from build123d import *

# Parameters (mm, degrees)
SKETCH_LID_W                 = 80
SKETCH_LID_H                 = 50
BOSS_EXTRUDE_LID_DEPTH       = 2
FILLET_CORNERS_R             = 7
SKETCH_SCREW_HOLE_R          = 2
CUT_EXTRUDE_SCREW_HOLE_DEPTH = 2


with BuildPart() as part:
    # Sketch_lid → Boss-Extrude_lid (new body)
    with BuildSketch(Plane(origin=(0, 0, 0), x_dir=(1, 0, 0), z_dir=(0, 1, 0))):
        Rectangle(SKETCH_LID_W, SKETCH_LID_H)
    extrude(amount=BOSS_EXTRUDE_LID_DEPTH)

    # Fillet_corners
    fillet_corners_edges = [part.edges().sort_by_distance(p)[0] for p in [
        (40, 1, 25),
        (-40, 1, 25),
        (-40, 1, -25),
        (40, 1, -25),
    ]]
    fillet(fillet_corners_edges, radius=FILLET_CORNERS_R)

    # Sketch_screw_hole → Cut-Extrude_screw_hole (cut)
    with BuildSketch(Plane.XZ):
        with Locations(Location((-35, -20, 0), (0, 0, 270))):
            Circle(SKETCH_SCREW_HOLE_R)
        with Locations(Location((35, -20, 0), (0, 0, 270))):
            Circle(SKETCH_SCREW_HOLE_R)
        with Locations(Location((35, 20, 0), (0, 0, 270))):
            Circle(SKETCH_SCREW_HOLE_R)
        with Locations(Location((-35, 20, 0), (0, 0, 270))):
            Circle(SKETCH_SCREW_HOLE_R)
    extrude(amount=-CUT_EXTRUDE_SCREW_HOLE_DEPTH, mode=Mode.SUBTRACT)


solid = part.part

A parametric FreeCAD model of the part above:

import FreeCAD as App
import Part
import Sketcher


def edges_at(feature, points):
    """Names of the edges that pass closest to the given points."""
    edges = feature.Shape.Edges
    near = lambda p: min(range(len(edges)), key=lambda i: edges[i].distToShape(Part.Vertex(*p))[0])
    return sorted({f"Edge{near(p) + 1}" for p in points})


def add_polygon(sketch, points):
    """Adds a closed chain of lines whose ends are joined by coincident constraints."""
    first, n = sketch.GeometryCount, len(points)
    for a, b in zip(points, points[1:] + points[:1]):
        sketch.addGeometry(Part.LineSegment(App.Vector(*a, 0), App.Vector(*b, 0)), False)
    for i in range(n):
        sketch.addConstraint(Sketcher.Constraint("Coincident", first + i, 2, first + (i + 1) % n, 1))

doc = App.newDocument("Part")
body = doc.addObject("PartDesign::Body", "Body")

# Sketch on XZ plane
sketch1 = body.newObject("Sketcher::SketchObject", "Sketch")
sketch1.AttachmentSupport = (doc.getObject("XZ_Plane"), [""])
sketch1.MapMode = "FlatFace"
add_polygon(sketch1, [(-40, -25), (-40, 25), (40, 25), (40, -25)])  # lines 0-3
sketch1.addConstraint(Sketcher.Constraint("Vertical", 0))
sketch1.addConstraint(Sketcher.Constraint("Horizontal", 1))
sketch1.addConstraint(Sketcher.Constraint("Vertical", 2))
sketch1.addConstraint(Sketcher.Constraint("Horizontal", 3))
sketch1.addConstraint(Sketcher.Constraint("Symmetric", 0, 2, 2, 2, -1, 1))
sketch1.addConstraint(Sketcher.Constraint("DistanceX", 1, 1, 1, 2, 80.0))
sketch1.addConstraint(Sketcher.Constraint("DistanceY", 0, 1, 0, 2, 50.0))
pad1 = body.newObject("PartDesign::Pad", "Pad")
pad1.Profile = sketch1
pad1.Length = 2
pad1.Reversed = True
doc.recompute()

fillet = body.newObject("PartDesign::Fillet", "Fillet")
fillet.Base = (pad1, edges_at(pad1, [
    (40, 1, 25),
    (-40, 1, 25),
    (-40, 1, -25),
    (40, 1, -25),
]))
fillet.Radius = 7

# Sketch on XZ plane
sketch2 = body.newObject("Sketcher::SketchObject", "Sketch001")
sketch2.AttachmentSupport = (doc.getObject("XZ_Plane"), [""])
sketch2.MapMode = "FlatFace"
sketch2.addGeometry(Part.Circle(App.Vector(-35, -20, 0), App.Vector(0, 0, 1), 2), False)
sketch2.addGeometry(Part.Circle(App.Vector(35, -20, 0), App.Vector(0, 0, 1), 2), False)
sketch2.addGeometry(Part.Circle(App.Vector(35, 20, 0), App.Vector(0, 0, 1), 2), False)
sketch2.addGeometry(Part.Circle(App.Vector(-35, 20, 0), App.Vector(0, 0, 1), 2), False)
sketch2.addConstraint(Sketcher.Constraint("Equal", 0, 1))
sketch2.addConstraint(Sketcher.Constraint("Equal", 1, 2))
sketch2.addConstraint(Sketcher.Constraint("Equal", 2, 3))
sketch2.addConstraint(Sketcher.Constraint("Symmetric", 0, 3, 2, 3, -1, 1))
sketch2.addConstraint(Sketcher.Constraint("Symmetric", 1, 3, 3, 3, -1, 1))
sketch2.addConstraint(Sketcher.Constraint("Symmetric", 0, 3, 1, 3, -2))
sketch2.addConstraint(Sketcher.Constraint("Diameter", 0, 4.0))
sketch2.addConstraint(Sketcher.Constraint("DistanceX", 0, 3, -1, 1, 35.0))
sketch2.addConstraint(Sketcher.Constraint("DistanceY", 0, 3, -1, 1, 20.0))
pocket1 = body.newObject("PartDesign::Pocket", "Pocket")
pocket1.Profile = sketch2
pocket1.Length = 2

doc.recompute()
